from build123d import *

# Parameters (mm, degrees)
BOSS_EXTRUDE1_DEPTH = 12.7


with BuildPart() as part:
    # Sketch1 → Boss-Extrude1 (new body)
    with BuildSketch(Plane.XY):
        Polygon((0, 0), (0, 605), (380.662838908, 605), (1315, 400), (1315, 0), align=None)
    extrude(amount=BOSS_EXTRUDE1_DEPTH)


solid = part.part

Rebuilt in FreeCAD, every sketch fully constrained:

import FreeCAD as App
import Part
import Sketcher
Q = App.Units.Quantity


def add_polygon(sketch, points):
    """Adds a closed chain of lines whose ends are joined by coincident constraints."""
    first, n = sketch.GeometryCount, len(points)
    for a, b in zip(points, points[1:] + points[:1]):
        sketch.addGeometry(Part.LineSegment(App.Vector(*a, 0), App.Vector(*b, 0)), False)
    for i in range(n):
        sketch.addConstraint(Sketcher.Constraint("Coincident", first + i, 2, first + (i + 1) % n, 1))

doc = App.newDocument("Part")
body = doc.addObject("PartDesign::Body", "Body")

sketch1 = doc.addObject("Sketcher::SketchObject", "Sketch")
body.addObject(sketch1)
sketch1.AttachmentSupport = (doc.XY_Plane, [""])
sketch1.MapMode = "FlatFace"
add_polygon(sketch1, [(0, 605), (0, 0), (1315, 0), (1315, 400), (380.662839, 605)])
sketch1.addConstraint([
    Sketcher.Constraint("Vertical", 0),
    Sketcher.Constraint("Horizontal", 1),
    Sketcher.Constraint("Vertical", 2),
    Sketcher.Constraint("Horizontal", 4),
    Sketcher.Constraint("Coincident", 0, 2, -1, 1),
    Sketcher.Constraint("DistanceX", 1, 1, 1, 2, Q("1315 mm")),
    Sketcher.Constraint("DistanceY", 0, 2, 0, 1, Q("605 mm")),
    Sketcher.Constraint("DistanceY", 2, 1, 2, 2, Q("400 mm")),
    Sketcher.Constraint("DistanceX", 4, 2, 4, 1, Q("380.662839 mm")),
])
pad1 = doc.addObject("PartDesign::Pad", "Pad")
body.addObject(pad1)
pad1.Profile = sketch1
pad1.Length = 12.7

doc.recompute()
